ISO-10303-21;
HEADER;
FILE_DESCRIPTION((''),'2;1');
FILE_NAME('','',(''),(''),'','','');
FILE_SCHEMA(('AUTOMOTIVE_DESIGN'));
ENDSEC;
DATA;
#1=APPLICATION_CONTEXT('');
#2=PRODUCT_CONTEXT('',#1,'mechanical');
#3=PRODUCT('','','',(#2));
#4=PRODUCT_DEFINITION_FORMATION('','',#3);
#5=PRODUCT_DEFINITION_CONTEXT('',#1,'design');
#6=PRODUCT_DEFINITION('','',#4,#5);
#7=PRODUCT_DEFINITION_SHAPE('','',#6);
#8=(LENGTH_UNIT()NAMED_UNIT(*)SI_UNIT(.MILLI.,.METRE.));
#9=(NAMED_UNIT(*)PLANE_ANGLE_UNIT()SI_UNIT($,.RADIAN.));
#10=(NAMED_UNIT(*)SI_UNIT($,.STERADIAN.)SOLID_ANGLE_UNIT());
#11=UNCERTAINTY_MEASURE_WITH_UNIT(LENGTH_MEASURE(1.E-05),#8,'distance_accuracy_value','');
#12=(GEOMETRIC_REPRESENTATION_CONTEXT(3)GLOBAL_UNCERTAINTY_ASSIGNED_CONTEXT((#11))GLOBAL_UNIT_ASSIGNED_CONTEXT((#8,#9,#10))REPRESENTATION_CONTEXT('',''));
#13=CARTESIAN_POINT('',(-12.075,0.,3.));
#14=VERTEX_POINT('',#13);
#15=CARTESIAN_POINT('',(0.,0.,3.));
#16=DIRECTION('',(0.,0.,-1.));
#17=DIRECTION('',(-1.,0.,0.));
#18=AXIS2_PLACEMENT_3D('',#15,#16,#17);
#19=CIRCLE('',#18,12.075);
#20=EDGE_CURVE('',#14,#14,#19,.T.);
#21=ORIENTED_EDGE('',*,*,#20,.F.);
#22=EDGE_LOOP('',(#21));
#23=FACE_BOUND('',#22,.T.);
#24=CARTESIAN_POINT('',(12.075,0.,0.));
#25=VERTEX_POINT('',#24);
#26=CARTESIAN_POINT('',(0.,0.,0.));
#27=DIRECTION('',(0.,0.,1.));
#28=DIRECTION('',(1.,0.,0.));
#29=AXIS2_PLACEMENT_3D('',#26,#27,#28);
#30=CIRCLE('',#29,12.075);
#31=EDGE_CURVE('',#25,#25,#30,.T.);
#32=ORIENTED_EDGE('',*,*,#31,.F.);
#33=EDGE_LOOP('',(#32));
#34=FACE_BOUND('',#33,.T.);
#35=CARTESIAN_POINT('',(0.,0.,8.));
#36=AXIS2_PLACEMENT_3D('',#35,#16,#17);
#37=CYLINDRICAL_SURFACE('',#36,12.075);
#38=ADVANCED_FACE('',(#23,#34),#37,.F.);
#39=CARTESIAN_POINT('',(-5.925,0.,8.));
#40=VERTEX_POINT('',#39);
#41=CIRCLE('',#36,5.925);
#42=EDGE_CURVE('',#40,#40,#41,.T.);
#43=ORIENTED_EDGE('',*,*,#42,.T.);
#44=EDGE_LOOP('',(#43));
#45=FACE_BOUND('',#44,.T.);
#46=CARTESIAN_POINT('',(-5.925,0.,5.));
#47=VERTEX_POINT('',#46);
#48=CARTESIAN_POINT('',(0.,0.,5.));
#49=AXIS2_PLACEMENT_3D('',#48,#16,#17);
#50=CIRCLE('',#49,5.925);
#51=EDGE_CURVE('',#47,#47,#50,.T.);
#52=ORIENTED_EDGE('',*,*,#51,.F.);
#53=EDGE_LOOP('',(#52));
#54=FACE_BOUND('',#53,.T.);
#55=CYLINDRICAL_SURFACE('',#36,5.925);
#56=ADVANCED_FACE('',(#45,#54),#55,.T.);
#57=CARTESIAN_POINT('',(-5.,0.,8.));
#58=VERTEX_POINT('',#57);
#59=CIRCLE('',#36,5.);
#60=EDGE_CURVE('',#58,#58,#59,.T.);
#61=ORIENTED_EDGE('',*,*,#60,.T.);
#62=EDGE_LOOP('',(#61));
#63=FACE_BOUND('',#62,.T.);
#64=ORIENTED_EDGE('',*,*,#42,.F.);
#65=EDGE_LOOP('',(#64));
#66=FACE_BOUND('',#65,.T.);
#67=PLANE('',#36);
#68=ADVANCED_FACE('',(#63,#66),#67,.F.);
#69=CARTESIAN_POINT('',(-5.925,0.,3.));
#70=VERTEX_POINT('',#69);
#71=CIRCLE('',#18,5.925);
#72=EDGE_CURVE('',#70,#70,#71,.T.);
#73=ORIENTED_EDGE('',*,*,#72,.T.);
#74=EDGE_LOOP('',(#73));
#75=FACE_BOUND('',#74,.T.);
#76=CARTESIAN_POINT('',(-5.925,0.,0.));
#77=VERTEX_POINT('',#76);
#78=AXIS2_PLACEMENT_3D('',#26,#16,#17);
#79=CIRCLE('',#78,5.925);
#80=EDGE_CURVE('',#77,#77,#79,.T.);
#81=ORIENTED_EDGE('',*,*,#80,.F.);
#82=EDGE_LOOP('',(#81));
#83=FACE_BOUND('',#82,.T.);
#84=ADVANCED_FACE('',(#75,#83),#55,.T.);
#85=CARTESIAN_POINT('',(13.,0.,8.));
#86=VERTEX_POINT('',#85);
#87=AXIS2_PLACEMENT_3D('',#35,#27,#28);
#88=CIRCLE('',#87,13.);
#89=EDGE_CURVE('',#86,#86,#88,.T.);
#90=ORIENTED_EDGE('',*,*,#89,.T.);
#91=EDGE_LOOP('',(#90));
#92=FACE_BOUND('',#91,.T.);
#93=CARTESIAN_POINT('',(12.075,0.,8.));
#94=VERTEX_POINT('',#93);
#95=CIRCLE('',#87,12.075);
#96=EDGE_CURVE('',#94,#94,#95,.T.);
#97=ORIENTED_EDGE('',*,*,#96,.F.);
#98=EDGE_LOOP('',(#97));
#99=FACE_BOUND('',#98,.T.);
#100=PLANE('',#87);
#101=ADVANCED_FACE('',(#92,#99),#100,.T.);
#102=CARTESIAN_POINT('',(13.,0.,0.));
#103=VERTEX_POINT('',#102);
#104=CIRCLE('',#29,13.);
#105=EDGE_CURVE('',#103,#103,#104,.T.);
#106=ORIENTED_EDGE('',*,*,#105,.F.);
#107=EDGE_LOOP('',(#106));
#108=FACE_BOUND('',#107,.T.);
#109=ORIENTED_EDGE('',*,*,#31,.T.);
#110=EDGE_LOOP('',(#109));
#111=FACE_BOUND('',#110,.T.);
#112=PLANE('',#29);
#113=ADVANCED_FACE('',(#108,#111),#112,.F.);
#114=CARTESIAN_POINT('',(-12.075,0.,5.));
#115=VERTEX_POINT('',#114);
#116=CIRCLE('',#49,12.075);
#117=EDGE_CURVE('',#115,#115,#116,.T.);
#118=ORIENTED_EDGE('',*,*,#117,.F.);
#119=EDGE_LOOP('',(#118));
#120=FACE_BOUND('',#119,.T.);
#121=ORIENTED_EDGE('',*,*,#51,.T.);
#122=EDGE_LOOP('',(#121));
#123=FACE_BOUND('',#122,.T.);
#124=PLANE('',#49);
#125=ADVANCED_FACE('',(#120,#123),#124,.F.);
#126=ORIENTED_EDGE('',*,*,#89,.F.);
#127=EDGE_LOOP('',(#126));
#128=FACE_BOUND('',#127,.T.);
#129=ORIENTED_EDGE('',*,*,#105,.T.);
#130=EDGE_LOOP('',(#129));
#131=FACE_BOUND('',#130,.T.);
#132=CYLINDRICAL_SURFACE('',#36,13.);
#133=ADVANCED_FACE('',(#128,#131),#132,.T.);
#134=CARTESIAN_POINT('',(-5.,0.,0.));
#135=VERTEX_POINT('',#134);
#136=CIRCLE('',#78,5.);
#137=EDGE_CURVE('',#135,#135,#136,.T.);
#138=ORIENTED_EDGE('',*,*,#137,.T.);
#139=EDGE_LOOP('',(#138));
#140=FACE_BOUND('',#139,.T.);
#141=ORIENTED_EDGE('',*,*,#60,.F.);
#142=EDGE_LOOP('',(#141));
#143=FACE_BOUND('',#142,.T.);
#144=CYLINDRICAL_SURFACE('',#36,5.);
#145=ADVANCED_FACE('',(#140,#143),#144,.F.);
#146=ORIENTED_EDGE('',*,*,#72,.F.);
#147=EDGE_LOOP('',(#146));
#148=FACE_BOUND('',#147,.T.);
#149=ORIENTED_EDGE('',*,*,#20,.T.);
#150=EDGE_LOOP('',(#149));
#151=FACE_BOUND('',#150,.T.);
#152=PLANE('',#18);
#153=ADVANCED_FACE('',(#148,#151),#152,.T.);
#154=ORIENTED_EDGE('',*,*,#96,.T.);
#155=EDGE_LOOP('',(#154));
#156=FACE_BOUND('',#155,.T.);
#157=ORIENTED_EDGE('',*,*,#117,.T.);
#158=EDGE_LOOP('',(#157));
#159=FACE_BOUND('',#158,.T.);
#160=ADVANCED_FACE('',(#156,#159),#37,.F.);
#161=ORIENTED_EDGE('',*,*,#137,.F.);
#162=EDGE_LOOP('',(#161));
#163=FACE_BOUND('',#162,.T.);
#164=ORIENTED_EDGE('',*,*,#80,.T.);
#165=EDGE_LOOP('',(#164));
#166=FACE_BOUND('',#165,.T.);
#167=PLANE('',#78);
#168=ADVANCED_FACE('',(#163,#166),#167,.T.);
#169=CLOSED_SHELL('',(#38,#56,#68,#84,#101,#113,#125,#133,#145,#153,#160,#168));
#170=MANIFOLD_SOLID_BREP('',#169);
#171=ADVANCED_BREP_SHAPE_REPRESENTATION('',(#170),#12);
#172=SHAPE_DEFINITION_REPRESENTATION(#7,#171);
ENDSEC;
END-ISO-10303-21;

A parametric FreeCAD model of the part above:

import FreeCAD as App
import Part
import Sketcher
from FreeCAD import Vector
Q = App.Units.Quantity

doc = App.newDocument("Part")
body = doc.addObject("PartDesign::Body", "Body")

sketch1 = doc.addObject("Sketcher::SketchObject", "Sketch")
body.addObject(sketch1)
sketch1.AttachmentSupport = (doc.XY_Plane, [""])
sketch1.MapMode = "FlatFace"
sketch1.addGeometry(Part.Circle(Vector(0, 0, 0), Vector(0, 0, 1), 13), False)
sketch1.addGeometry(Part.Circle(Vector(0, 0, 0), Vector(0, 0, 1), 12.075), False)
sketch1.addConstraint(Sketcher.Constraint("Coincident", 0, 3, -1, 1))
sketch1.addConstraint(Sketcher.Constraint("Coincident", 1, 3, -1, 1))
sketch1.addConstraint(Sketcher.Constraint("Diameter", 0, Q("26 mm")))
sketch1.addConstraint(Sketcher.Constraint("Diameter", 1, Q("24.15 mm")))
pad1 = doc.addObject("PartDesign::Pad", "Pad")
body.addObject(pad1)
pad1.Profile = sketch1
pad1.Length = 8

sketch2 = doc.addObject("Sketcher::SketchObject", "Sketch001")
body.addObject(sketch2)
sketch2.AttachmentSupport = (doc.XY_Plane, [""])
sketch2.MapMode = "FlatFace"
sketch2.AttachmentOffset = App.Placement(Vector(0, 0, 4), App.Rotation())
sketch2.addGeometry(Part.Circle(Vector(0, 0, 0), Vector(0, 0, 1), 12.5695), False)
sketch2.addConstraint(Sketcher.Constraint("Coincident", 0, 3, -1, 1))
sketch2.addConstraint(Sketcher.Constraint("Diameter", 0, Q("25.138999 mm")))
pad2 = doc.addObject("PartDesign::Pad", "Pad001")
body.addObject(pad2)
pad2.Profile = sketch2
pad2.Type = "TwoLengths"
pad2.Length = 1
pad2.Length2 = 1
pad2.Reversed = True

sketch3 = doc.addObject("Sketcher::SketchObject", "Sketch002")
body.addObject(sketch3)
sketch3.AttachmentSupport = (doc.XY_Plane, [""])
sketch3.MapMode = "FlatFace"
sketch3.AttachmentOffset = App.Placement(Vector(0, 0, 4), App.Rotation())
sketch3.addGeometry(Part.Circle(Vector(0, 0, 0), Vector(0, 0, 1), 5.925), False)
sketch3.addGeometry(Part.Circle(Vector(0, 0, 0), Vector(0, 0, 1), 5), False)
sketch3.addConstraint(Sketcher.Constraint("Coincident", 0, 3, -1, 1))
sketch3.addConstraint(Sketcher.Constraint("Coincident", 1, 3, -1, 1))
sketch3.addConstraint(Sketcher.Constraint("Diameter", 1, Q("10 mm")))
sketch3.addConstraint(Sketcher.Constraint("Diameter", 0, Q("11.85 mm")))
pad3 = doc.addObject("PartDesign::Pad", "Pad002")
body.addObject(pad3)
pad3.Profile = sketch3
pad3.Type = "TwoLengths"
pad3.Length = 4
pad3.Length2 = 4
pad3.Reversed = True

sketch4 = doc.addObject("Sketcher::SketchObject", "Sketch003")
body.addObject(sketch4)
sketch4.AttachmentSupport = (doc.XY_Plane, [""])
sketch4.MapMode = "FlatFace"
sketch4.AttachmentOffset = App.Placement(Vector(0, 0, 5), App.Rotation())
sketch4.addGeometry(Part.Circle(Vector(0, 0, 0), Vector(0, 0, 1), 5), False)
sketch4.addConstraint(Sketcher.Constraint("Coincident", 0, 3, -1, 1))
sketch4.addConstraint(Sketcher.Constraint("Diameter", 0, Q("10 mm")))
pocket1 = doc.addObject("PartDesign::Pocket", "Pocket")
body.addObject(pocket1)
pocket1.Profile = sketch4
pocket1.Length = 2

doc.recompute()
